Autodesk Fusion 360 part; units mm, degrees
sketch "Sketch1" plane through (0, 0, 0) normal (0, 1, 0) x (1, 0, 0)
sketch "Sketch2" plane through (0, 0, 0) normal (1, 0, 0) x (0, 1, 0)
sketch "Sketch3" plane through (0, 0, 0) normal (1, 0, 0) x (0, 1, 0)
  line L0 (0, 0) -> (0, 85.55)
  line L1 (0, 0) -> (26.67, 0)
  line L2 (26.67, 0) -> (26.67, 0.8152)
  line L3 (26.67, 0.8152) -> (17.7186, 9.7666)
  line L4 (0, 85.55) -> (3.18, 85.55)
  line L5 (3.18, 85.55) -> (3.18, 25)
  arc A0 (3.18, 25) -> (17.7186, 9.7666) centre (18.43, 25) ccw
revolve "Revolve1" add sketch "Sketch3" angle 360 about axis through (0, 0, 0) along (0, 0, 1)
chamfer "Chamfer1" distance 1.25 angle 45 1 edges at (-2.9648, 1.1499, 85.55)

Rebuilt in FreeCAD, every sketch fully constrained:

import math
import FreeCAD as App
import Part
import Sketcher
Q = App.Units.Quantity


def edges_at(feature, points):
    """Names of the edges that pass closest to the given points."""
    edges = feature.Shape.Edges
    near = lambda p: min(range(len(edges)), key=lambda i: edges[i].distToShape(Part.Vertex(*p))[0])
    return sorted({f"Edge{near(p) + 1}" for p in points})

doc = App.newDocument("Part")
body = doc.addObject("PartDesign::Body", "Body")

# Sketch on YZ plane
sketch1 = body.newObject("Sketcher::SketchObject", "Sketch")
sketch1.AttachmentSupport = (doc.getObject("YZ_Plane"), [""])
sketch1.MapMode = "FlatFace"
sketch1.addGeometry(Part.LineSegment(App.Vector(0, 85.5, 0), App.Vector(0, 0, 0)), False)
sketch1.addGeometry(Part.LineSegment(App.Vector(0, 0, 0), App.Vector(26.7, 0, 0)), False)
sketch1.addGeometry(Part.LineSegment(App.Vector(26.7, 0, 0), App.Vector(26.7, 0.8, 0)), False)
sketch1.addGeometry(Part.LineSegment(App.Vector(26.7, 0.8, 0), App.Vector(17.7, 9.8, 0)), False)
sketch1.addGeometry(Part.ArcOfCircle(Part.Circle(App.Vector(18.4, 25, 0), App.Vector(0, 0, 1), 15.2), math.radians(180), math.radians(267)), False)
sketch1.addGeometry(Part.LineSegment(App.Vector(3.2, 25, 0), App.Vector(3.2, 85.5, 0)), False)
sketch1.addGeometry(Part.LineSegment(App.Vector(3.2, 85.5, 0), App.Vector(0, 85.5, 0)), False)
sketch1.addConstraint(Sketcher.Constraint("Coincident", 0, 2, 1, 1))
sketch1.addConstraint(Sketcher.Constraint("Coincident", 1, 2, 2, 1))
sketch1.addConstraint(Sketcher.Constraint("Coincident", 2, 2, 3, 1))
sketch1.addConstraint(Sketcher.Constraint("Coincident", 3, 2, 4, 2))
sketch1.addConstraint(Sketcher.Constraint("Tangent", 4, 1, 5, 1))
sketch1.addConstraint(Sketcher.Constraint("Coincident", 5, 2, 6, 1))
sketch1.addConstraint(Sketcher.Constraint("Coincident", 6, 2, 0, 1))
sketch1.addConstraint(Sketcher.Constraint("Vertical", 0))
sketch1.addConstraint(Sketcher.Constraint("Horizontal", 1))
sketch1.addConstraint(Sketcher.Constraint("Vertical", 2))
sketch1.addConstraint(Sketcher.Constraint("Vertical", 5))
sketch1.addConstraint(Sketcher.Constraint("Horizontal", 6))
sketch1.addConstraint(Sketcher.Constraint("Coincident", 0, 2, -1, 1))
sketch1.addConstraint(Sketcher.Constraint("Angle", 3, Q("135 deg")))
sketch1.addConstraint(Sketcher.Constraint("Radius", 4, Q("15.25 mm")))
sketch1.addConstraint(Sketcher.Constraint("DistanceY", -1, 1, 4, 3, Q("25 mm")))
sketch1.addConstraint(Sketcher.Constraint("DistanceX", 1, 1, 1, 2, Q("26.67 mm")))
sketch1.addConstraint(Sketcher.Constraint("DistanceX", 6, 2, 6, 1, Q("3.18 mm")))
sketch1.addConstraint(Sketcher.Constraint("DistanceY", 0, 2, 0, 1, Q("85.55 mm")))
sketch1.addConstraint(Sketcher.Constraint("DistanceY", 2, 1, 2, 2, Q("0.8152 mm")))
revolution = body.newObject("PartDesign::Revolution", "Revolution")
revolution.Profile = sketch1
revolution.ReferenceAxis = (sketch1, ["V_Axis"])
revolution.Angle = 360
doc.recompute()

chamfer = body.newObject("PartDesign::Chamfer", "Chamfer")
chamfer.Base = (revolution, edges_at(revolution, [(-2.965, 1.15, 85.55)]))
chamfer.Size = 1.25

doc.recompute()
